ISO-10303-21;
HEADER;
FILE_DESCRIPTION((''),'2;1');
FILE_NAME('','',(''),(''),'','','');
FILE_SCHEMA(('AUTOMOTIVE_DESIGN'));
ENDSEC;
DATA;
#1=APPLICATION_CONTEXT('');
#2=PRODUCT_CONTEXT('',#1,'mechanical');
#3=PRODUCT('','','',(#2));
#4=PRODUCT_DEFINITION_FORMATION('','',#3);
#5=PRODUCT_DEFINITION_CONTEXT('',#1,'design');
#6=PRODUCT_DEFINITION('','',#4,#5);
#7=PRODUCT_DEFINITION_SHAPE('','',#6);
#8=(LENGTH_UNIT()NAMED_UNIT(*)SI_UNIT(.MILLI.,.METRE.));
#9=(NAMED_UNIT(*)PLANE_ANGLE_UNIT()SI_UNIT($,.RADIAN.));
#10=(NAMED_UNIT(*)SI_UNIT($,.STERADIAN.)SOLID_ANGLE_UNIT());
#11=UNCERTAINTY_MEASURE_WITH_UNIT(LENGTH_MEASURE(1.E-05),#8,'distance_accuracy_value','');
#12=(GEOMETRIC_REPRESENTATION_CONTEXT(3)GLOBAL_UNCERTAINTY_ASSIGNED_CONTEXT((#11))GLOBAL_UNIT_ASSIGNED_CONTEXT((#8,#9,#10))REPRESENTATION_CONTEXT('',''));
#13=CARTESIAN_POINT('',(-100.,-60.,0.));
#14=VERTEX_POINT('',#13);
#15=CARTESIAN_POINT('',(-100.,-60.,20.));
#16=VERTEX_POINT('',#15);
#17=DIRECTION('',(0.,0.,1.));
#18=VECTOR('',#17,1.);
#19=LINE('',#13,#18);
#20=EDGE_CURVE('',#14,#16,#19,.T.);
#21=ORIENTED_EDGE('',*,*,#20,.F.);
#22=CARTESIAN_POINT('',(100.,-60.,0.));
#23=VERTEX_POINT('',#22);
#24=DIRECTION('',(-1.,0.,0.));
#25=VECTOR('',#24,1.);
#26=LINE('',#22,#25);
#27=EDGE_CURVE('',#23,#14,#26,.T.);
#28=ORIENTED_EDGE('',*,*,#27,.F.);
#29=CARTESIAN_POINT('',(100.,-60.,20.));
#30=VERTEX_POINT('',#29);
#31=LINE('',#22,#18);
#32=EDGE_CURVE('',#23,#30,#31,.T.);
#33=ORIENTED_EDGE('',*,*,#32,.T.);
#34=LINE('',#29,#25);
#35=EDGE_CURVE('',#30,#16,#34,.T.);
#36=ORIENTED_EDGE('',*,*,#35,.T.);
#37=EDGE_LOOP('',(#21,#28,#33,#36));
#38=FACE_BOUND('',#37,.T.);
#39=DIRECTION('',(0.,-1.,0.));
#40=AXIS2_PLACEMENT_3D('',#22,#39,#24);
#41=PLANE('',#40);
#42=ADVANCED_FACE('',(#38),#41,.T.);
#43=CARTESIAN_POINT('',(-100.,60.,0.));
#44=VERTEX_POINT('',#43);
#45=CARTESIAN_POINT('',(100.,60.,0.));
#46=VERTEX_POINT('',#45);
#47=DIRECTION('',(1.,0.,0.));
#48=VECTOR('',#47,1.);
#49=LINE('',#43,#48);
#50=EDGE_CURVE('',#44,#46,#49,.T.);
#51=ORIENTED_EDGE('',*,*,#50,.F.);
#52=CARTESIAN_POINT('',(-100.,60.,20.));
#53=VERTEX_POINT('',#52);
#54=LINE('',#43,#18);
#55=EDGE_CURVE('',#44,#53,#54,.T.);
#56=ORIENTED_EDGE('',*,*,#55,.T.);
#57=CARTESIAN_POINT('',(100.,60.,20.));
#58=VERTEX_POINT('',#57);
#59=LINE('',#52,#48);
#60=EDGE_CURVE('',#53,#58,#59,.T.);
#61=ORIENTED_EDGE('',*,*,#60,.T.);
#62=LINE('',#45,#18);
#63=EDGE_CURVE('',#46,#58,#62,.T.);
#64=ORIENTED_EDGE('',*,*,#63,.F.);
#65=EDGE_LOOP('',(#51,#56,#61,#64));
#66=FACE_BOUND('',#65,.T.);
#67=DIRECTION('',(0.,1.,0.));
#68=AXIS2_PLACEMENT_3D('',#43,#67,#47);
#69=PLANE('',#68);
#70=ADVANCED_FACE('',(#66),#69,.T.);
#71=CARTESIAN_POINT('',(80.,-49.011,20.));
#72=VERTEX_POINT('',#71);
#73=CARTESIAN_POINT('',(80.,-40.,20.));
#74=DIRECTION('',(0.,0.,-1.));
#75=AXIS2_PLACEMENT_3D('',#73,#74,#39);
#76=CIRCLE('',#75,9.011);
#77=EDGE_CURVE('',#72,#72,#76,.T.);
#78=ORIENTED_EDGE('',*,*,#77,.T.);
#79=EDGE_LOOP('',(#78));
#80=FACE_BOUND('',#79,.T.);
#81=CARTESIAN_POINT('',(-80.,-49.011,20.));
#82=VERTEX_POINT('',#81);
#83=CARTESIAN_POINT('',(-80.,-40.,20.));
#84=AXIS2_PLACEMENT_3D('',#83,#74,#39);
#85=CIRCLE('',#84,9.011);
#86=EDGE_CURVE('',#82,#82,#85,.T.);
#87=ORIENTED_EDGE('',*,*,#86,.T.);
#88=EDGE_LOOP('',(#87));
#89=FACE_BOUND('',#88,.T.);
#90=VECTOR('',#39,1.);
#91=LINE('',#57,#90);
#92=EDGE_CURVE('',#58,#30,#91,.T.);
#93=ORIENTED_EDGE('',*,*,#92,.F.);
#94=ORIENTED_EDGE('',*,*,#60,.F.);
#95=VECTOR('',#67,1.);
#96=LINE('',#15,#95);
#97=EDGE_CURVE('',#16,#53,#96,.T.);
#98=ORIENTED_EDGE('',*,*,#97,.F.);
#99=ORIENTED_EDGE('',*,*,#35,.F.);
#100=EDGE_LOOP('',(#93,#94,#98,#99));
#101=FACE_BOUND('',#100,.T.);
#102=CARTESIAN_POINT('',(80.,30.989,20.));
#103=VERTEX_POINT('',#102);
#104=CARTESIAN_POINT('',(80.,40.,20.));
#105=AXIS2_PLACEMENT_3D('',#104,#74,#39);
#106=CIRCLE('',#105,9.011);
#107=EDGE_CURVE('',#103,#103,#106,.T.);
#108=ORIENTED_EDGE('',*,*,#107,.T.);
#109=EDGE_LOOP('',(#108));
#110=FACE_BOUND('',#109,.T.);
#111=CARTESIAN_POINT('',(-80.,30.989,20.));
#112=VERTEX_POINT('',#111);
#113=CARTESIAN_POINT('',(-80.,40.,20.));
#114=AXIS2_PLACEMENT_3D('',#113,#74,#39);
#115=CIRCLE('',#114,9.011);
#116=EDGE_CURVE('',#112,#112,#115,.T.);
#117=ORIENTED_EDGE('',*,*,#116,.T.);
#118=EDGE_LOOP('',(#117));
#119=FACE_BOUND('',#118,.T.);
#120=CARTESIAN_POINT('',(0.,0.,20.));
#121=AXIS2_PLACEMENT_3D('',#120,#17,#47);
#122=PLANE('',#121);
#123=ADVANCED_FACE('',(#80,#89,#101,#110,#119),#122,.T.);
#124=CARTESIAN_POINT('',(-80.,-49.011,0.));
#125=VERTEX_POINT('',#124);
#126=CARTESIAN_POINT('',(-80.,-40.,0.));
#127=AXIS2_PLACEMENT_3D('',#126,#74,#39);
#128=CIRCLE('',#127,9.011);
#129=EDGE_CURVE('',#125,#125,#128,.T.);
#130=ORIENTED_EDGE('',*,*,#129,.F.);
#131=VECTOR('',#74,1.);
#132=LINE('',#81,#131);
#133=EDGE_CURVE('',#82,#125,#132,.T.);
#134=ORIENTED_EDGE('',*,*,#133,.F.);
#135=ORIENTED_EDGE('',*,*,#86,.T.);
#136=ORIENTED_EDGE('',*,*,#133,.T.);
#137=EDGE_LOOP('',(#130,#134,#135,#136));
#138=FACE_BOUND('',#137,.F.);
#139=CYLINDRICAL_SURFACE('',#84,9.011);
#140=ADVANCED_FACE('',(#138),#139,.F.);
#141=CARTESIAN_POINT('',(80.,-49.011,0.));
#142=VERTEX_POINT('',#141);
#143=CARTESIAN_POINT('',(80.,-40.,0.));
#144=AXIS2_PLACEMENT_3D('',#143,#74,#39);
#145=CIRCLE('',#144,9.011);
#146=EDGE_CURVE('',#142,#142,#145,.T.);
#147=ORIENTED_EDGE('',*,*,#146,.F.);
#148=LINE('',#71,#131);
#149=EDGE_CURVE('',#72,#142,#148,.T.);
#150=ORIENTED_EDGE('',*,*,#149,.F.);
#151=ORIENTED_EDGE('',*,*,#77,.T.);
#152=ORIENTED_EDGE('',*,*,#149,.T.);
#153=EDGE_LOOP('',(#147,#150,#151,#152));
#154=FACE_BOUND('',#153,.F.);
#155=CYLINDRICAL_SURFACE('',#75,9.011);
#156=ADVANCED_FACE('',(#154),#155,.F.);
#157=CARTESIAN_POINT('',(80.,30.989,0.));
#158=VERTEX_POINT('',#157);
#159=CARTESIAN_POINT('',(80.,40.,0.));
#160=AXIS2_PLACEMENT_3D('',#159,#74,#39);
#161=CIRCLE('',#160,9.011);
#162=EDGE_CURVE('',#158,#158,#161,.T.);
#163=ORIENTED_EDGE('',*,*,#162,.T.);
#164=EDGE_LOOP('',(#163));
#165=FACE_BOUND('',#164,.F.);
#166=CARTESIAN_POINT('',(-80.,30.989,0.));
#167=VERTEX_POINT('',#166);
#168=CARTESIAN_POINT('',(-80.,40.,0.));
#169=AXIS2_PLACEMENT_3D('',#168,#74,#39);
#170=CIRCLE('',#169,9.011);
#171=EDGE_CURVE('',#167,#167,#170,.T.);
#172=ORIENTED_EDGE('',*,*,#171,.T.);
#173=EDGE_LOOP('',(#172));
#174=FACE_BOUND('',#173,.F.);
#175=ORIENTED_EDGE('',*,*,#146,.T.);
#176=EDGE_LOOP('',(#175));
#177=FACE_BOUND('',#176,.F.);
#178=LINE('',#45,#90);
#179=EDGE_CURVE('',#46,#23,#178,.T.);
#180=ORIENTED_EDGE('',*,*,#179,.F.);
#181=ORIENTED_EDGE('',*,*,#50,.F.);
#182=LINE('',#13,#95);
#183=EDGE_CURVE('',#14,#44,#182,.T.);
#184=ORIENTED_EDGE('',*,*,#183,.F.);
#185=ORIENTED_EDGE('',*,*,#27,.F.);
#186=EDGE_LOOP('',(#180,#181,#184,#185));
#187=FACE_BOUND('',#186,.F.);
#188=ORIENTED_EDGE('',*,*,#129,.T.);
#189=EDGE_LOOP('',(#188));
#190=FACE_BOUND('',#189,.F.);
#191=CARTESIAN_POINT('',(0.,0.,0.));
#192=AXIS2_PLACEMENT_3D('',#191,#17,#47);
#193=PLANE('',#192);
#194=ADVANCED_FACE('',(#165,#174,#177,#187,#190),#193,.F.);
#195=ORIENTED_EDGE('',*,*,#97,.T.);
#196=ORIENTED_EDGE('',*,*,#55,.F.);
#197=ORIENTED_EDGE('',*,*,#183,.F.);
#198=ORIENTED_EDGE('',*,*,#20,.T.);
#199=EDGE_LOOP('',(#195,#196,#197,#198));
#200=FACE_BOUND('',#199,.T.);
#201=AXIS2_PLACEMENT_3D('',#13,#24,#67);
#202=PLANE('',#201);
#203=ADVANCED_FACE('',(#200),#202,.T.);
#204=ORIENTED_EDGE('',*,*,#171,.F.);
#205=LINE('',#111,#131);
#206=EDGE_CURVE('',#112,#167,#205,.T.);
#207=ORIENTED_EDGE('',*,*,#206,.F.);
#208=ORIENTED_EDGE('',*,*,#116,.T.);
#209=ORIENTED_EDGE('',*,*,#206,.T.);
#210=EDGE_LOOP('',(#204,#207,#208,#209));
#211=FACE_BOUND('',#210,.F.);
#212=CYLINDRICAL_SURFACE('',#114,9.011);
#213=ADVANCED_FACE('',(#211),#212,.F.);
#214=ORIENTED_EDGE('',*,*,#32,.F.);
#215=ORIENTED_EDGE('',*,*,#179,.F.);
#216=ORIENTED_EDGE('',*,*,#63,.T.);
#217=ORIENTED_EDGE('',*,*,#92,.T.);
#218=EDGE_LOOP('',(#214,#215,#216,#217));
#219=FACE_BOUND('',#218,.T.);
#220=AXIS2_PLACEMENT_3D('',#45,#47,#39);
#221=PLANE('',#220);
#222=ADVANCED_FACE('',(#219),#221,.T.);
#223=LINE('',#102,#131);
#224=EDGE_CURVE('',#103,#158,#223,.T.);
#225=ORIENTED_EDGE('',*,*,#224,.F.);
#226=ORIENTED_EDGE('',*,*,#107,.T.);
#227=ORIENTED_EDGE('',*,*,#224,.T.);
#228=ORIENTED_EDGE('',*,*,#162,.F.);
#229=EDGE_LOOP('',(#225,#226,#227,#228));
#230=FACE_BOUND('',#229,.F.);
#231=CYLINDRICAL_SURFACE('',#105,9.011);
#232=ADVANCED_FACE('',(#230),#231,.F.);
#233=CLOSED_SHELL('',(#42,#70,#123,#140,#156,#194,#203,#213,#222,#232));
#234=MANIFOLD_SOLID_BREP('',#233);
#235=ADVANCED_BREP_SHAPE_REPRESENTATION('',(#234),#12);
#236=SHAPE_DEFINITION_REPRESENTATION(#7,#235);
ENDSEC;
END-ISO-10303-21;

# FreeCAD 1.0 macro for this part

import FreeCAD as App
import Part
import Sketcher

V = App.Vector


def add_polygon(sketch, points):
    """Adds a closed chain of lines whose ends are joined by coincident constraints."""
    first, n = sketch.GeometryCount, len(points)
    for a, b in zip(points, points[1:] + points[:1]):
        sketch.addGeometry(Part.LineSegment(App.Vector(*a, 0), App.Vector(*b, 0)), False)
    for i in range(n):
        sketch.addConstraint(Sketcher.Constraint("Coincident", first + i, 2, first + (i + 1) % n, 1))

doc = App.newDocument("Part")
body = doc.addObject("PartDesign::Body", "Body")

# Sketch on XY plane
sketch1 = doc.addObject("Sketcher::SketchObject", "Sketch")
body.addObject(sketch1)
sketch1.AttachmentSupport = (doc.XY_Plane, [""])
sketch1.MapMode = "FlatFace"
add_polygon(sketch1, [(100, 60), (-100, 60), (-100, -60), (100, -60)])  # lines 0-3
sketch1.addConstraint(Sketcher.Constraint("Horizontal", 0))
sketch1.addConstraint(Sketcher.Constraint("Vertical", 1))
sketch1.addConstraint(Sketcher.Constraint("Horizontal", 2))
sketch1.addConstraint(Sketcher.Constraint("Vertical", 3))
sketch1.addConstraint(Sketcher.Constraint("Symmetric", 0, 2, 2, 2, -1, 1))
sketch1.addConstraint(Sketcher.Constraint("DistanceX", 0, 2, 0, 1, 200.0))
sketch1.addConstraint(Sketcher.Constraint("DistanceY", 1, 2, 1, 1, 120.0))
pad1 = doc.addObject("PartDesign::Pad", "Pad")
body.addObject(pad1)
pad1.Profile = sketch1
pad1.Length = 20

# Sketch on XY plane
sketch2 = doc.addObject("Sketcher::SketchObject", "Sketch001")
body.addObject(sketch2)
sketch2.AttachmentSupport = (doc.XY_Plane, [""])
sketch2.MapMode = "FlatFace"
sketch2.AttachmentOffset = App.Placement(V(0, 0, 20), App.Rotation())
sketch2.addGeometry(Part.Circle(V(-80, 40, 0), V(0, 0, 1), 9), False)
sketch2.addGeometry(Part.Circle(V(-80, -40, 0), V(0, 0, 1), 9), False)
sketch2.addGeometry(Part.Circle(V(80, 40, 0), V(0, 0, 1), 9), False)
sketch2.addGeometry(Part.Circle(V(80, -40, 0), V(0, 0, 1), 9), False)
sketch2.addConstraint(Sketcher.Constraint("Equal", 0, 1))
sketch2.addConstraint(Sketcher.Constraint("Equal", 1, 2))
sketch2.addConstraint(Sketcher.Constraint("Equal", 2, 3))
sketch2.addConstraint(Sketcher.Constraint("Symmetric", 1, 3, 2, 3, -1, 1))
sketch2.addConstraint(Sketcher.Constraint("Symmetric", 0, 3, 3, 3, -1, 1))
sketch2.addConstraint(Sketcher.Constraint("Symmetric", 0, 3, 2, 3, -2))
sketch2.addConstraint(Sketcher.Constraint("Diameter", 0, 18.022))
sketch2.addConstraint(Sketcher.Constraint("DistanceX", 0, 3, -1, 1, 80.0))
sketch2.addConstraint(Sketcher.Constraint("DistanceY", -1, 1, 0, 3, 40.0))
doc.recompute()
hole = doc.addObject("PartDesign::Hole", "Hole")
body.addObject(hole)
hole.Profile = sketch2
hole.ThreadType = "None"
hole.Diameter = 18.022
hole.DepthType = "Dimension"
hole.Depth = 20
hole.DrillPoint = "Angled"
hole.DrillPointAngle = 118

doc.recompute()
